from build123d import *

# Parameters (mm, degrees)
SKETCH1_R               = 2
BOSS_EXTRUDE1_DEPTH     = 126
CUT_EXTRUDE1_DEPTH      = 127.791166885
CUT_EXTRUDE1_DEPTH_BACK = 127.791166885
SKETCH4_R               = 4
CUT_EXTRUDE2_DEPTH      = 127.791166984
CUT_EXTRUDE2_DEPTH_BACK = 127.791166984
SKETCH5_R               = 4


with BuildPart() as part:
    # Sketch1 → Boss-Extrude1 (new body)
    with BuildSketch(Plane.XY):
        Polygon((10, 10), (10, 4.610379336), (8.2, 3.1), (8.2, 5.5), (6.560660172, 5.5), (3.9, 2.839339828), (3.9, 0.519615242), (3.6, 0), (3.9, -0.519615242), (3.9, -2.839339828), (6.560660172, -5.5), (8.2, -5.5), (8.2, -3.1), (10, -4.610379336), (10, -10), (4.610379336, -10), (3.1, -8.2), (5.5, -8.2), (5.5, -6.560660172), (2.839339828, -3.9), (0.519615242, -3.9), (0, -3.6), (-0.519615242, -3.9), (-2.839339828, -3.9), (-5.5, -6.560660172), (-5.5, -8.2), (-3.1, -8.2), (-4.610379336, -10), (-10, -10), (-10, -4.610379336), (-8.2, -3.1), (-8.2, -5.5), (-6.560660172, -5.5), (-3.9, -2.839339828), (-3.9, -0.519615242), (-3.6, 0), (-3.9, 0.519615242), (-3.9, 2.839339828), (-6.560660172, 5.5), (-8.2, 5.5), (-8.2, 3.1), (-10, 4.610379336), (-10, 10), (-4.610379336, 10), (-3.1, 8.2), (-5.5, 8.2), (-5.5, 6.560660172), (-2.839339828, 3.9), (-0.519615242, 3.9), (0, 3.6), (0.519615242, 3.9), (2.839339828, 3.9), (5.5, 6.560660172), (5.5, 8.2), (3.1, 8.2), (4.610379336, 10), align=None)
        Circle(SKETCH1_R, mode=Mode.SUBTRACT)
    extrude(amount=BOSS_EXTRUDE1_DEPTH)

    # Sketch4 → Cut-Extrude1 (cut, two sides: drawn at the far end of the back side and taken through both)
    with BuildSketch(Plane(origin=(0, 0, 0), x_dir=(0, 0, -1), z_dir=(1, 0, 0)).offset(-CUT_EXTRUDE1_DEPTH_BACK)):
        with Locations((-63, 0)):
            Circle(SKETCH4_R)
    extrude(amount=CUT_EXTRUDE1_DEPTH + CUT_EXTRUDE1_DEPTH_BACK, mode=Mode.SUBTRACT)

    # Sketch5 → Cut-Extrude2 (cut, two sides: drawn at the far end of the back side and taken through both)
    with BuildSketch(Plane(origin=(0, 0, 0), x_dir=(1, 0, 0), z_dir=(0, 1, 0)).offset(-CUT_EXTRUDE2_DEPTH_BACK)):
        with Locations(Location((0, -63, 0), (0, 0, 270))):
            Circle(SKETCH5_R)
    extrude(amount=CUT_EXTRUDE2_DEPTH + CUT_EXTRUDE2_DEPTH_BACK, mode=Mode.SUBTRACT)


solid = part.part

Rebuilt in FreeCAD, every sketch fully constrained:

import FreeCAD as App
import Part
import Sketcher

V = App.Vector
Q = App.Units.Quantity

doc = App.newDocument("Part")
body = doc.addObject("PartDesign::Body", "Body")

sketch1 = body.newObject("Sketcher::SketchObject", "Sketch")
sketch1.AttachmentSupport = (doc.getObject("XY_Plane"), [""])
sketch1.MapMode = "FlatFace"
sketch1.addGeometry(Part.LineSegment(V(10, 4.610379, 0), V(10, 10, 0)), False)
sketch1.addGeometry(Part.LineSegment(V(10, 10, 0), V(4.610379, 10, 0)), False)
sketch1.addGeometry(Part.LineSegment(V(4.610379, 10, 0), V(3.1, 8.2, 0)), False)
sketch1.addGeometry(Part.LineSegment(V(3.1, 8.2, 0), V(5.5, 8.2, 0)), False)
sketch1.addGeometry(Part.LineSegment(V(5.5, 8.2, 0), V(5.5, 6.56066, 0)), False)
sketch1.addGeometry(Part.LineSegment(V(5.5, 6.56066, 0), V(2.83934, 3.9, 0)), False)
sketch1.addGeometry(Part.LineSegment(V(2.83934, 3.9, 0), V(0.519615, 3.9, 0)), False)
sketch1.addGeometry(Part.LineSegment(V(0.519615, 3.9, 0), V(0, 3.6, 0)), False)
sketch1.addGeometry(Part.LineSegment(V(0, 3.6, 0), V(-0.519615, 3.9, 0)), False)
sketch1.addGeometry(Part.LineSegment(V(-0.519615, 3.9, 0), V(-2.83934, 3.9, 0)), False)
sketch1.addGeometry(Part.LineSegment(V(-2.83934, 3.9, 0), V(-5.5, 6.56066, 0)), False)
sketch1.addGeometry(Part.LineSegment(V(-5.5, 6.56066, 0), V(-5.5, 8.2, 0)), False)
sketch1.addGeometry(Part.LineSegment(V(-5.5, 8.2, 0), V(-3.1, 8.2, 0)), False)
sketch1.addGeometry(Part.LineSegment(V(-3.1, 8.2, 0), V(-4.610379, 10, 0)), False)
sketch1.addGeometry(Part.LineSegment(V(-4.610379, 10, 0), V(-10, 10, 0)), False)
sketch1.addGeometry(Part.LineSegment(V(-10, 10, 0), V(-10, 4.610379, 0)), False)
sketch1.addGeometry(Part.LineSegment(V(-10, 4.610379, 0), V(-8.2, 3.1, 0)), False)
sketch1.addGeometry(Part.LineSegment(V(-8.2, 3.1, 0), V(-8.2, 5.5, 0)), False)
sketch1.addGeometry(Part.LineSegment(V(-8.2, 5.5, 0), V(-6.56066, 5.5, 0)), False)
sketch1.addGeometry(Part.LineSegment(V(-6.56066, 5.5, 0), V(-3.9, 2.83934, 0)), False)
sketch1.addGeometry(Part.LineSegment(V(-3.9, 2.83934, 0), V(-3.9, 0.519615, 0)), False)
sketch1.addGeometry(Part.LineSegment(V(-3.9, 0.519615, 0), V(-3.6, 0, 0)), False)
sketch1.addGeometry(Part.LineSegment(V(-3.6, 0, 0), V(-3.9, -0.519615, 0)), False)
sketch1.addGeometry(Part.LineSegment(V(-3.9, -0.519615, 0), V(-3.9, -2.83934, 0)), False)
sketch1.addGeometry(Part.LineSegment(V(-3.9, -2.83934, 0), V(-6.56066, -5.5, 0)), False)
sketch1.addGeometry(Part.LineSegment(V(-6.56066, -5.5, 0), V(-8.2, -5.5, 0)), False)
sketch1.addGeometry(Part.LineSegment(V(-8.2, -5.5, 0), V(-8.2, -3.1, 0)), False)
sketch1.addGeometry(Part.LineSegment(V(-8.2, -3.1, 0), V(-10, -4.610379, 0)), False)
sketch1.addGeometry(Part.LineSegment(V(-10, -4.610379, 0), V(-10, -10, 0)), False)
sketch1.addGeometry(Part.LineSegment(V(-10, -10, 0), V(-4.610379, -10, 0)), False)
sketch1.addGeometry(Part.LineSegment(V(-4.610379, -10, 0), V(-3.1, -8.2, 0)), False)
sketch1.addGeometry(Part.LineSegment(V(-3.1, -8.2, 0), V(-5.5, -8.2, 0)), False)
sketch1.addGeometry(Part.LineSegment(V(-5.5, -8.2, 0), V(-5.5, -6.56066, 0)), False)
sketch1.addGeometry(Part.LineSegment(V(-5.5, -6.56066, 0), V(-2.83934, -3.9, 0)), False)
sketch1.addGeometry(Part.LineSegment(V(-2.83934, -3.9, 0), V(-0.519615, -3.9, 0)), False)
sketch1.addGeometry(Part.LineSegment(V(-0.519615, -3.9, 0), V(0, -3.6, 0)), False)
sketch1.addGeometry(Part.LineSegment(V(0, -3.6, 0), V(0.519615, -3.9, 0)), False)
sketch1.addGeometry(Part.LineSegment(V(0.519615, -3.9, 0), V(2.83934, -3.9, 0)), False)
sketch1.addGeometry(Part.LineSegment(V(2.83934, -3.9, 0), V(5.5, -6.56066, 0)), False)
sketch1.addGeometry(Part.LineSegment(V(5.5, -6.56066, 0), V(5.5, -8.2, 0)), False)
sketch1.addGeometry(Part.LineSegment(V(5.5, -8.2, 0), V(3.1, -8.2, 0)), False)
sketch1.addGeometry(Part.LineSegment(V(3.1, -8.2, 0), V(4.610379, -10, 0)), False)
sketch1.addGeometry(Part.LineSegment(V(4.610379, -10, 0), V(10, -10, 0)), False)
sketch1.addGeometry(Part.LineSegment(V(10, -10, 0), V(10, -4.610379, 0)), False)
sketch1.addGeometry(Part.LineSegment(V(10, -4.610379, 0), V(8.2, -3.1, 0)), False)
sketch1.addGeometry(Part.LineSegment(V(8.2, -3.1, 0), V(8.2, -5.5, 0)), False)
sketch1.addGeometry(Part.LineSegment(V(8.2, -5.5, 0), V(6.56066, -5.5, 0)), False)
sketch1.addGeometry(Part.LineSegment(V(6.56066, -5.5, 0), V(3.9, -2.83934, 0)), False)
sketch1.addGeometry(Part.LineSegment(V(3.9, -2.83934, 0), V(3.9, -0.519615, 0)), False)
sketch1.addGeometry(Part.LineSegment(V(3.9, -0.519615, 0), V(3.6, 0, 0)), False)
sketch1.addGeometry(Part.LineSegment(V(3.6, 0, 0), V(3.9, 0.519615, 0)), False)
sketch1.addGeometry(Part.LineSegment(V(3.9, 0.519615, 0), V(3.9, 2.83934, 0)), False)
sketch1.addGeometry(Part.LineSegment(V(3.9, 2.83934, 0), V(6.56066, 5.5, 0)), False)
sketch1.addGeometry(Part.LineSegment(V(6.56066, 5.5, 0), V(8.2, 5.5, 0)), False)
sketch1.addGeometry(Part.LineSegment(V(8.2, 5.5, 0), V(8.2, 3.1, 0)), False)
sketch1.addGeometry(Part.LineSegment(V(8.2, 3.1, 0), V(10, 4.610379, 0)), False)
sketch1.addGeometry(Part.Circle(V(0, 0, 0), V(0, 0, 1), 2), False)
sketch1.addConstraint(Sketcher.Constraint("Coincident", 0, 2, 1, 1))
sketch1.addConstraint(Sketcher.Constraint("Coincident", 1, 2, 2, 1))
sketch1.addConstraint(Sketcher.Constraint("Coincident", 2, 2, 3, 1))
sketch1.addConstraint(Sketcher.Constraint("Coincident", 3, 2, 4, 1))
sketch1.addConstraint(Sketcher.Constraint("Coincident", 4, 2, 5, 1))
sketch1.addConstraint(Sketcher.Constraint("Coincident", 5, 2, 6, 1))
sketch1.addConstraint(Sketcher.Constraint("Coincident", 6, 2, 7, 1))
sketch1.addConstraint(Sketcher.Constraint("Coincident", 7, 2, 8, 1))
sketch1.addConstraint(Sketcher.Constraint("Coincident", 8, 2, 9, 1))
sketch1.addConstraint(Sketcher.Constraint("Coincident", 9, 2, 10, 1))
sketch1.addConstraint(Sketcher.Constraint("Coincident", 10, 2, 11, 1))
sketch1.addConstraint(Sketcher.Constraint("Coincident", 11, 2, 12, 1))
sketch1.addConstraint(Sketcher.Constraint("Coincident", 12, 2, 13, 1))
sketch1.addConstraint(Sketcher.Constraint("Coincident", 13, 2, 14, 1))
sketch1.addConstraint(Sketcher.Constraint("Coincident", 14, 2, 15, 1))
sketch1.addConstraint(Sketcher.Constraint("Coincident", 15, 2, 16, 1))
sketch1.addConstraint(Sketcher.Constraint("Coincident", 16, 2, 17, 1))
sketch1.addConstraint(Sketcher.Constraint("Coincident", 17, 2, 18, 1))
sketch1.addConstraint(Sketcher.Constraint("Coincident", 18, 2, 19, 1))
sketch1.addConstraint(Sketcher.Constraint("Coincident", 19, 2, 20, 1))
sketch1.addConstraint(Sketcher.Constraint("Coincident", 20, 2, 21, 1))
sketch1.addConstraint(Sketcher.Constraint("Coincident", 21, 2, 22, 1))
sketch1.addConstraint(Sketcher.Constraint("Coincident", 22, 2, 23, 1))
sketch1.addConstraint(Sketcher.Constraint("Coincident", 23, 2, 24, 1))
sketch1.addConstraint(Sketcher.Constraint("Coincident", 24, 2, 25, 1))
sketch1.addConstraint(Sketcher.Constraint("Coincident", 25, 2, 26, 1))
sketch1.addConstraint(Sketcher.Constraint("Coincident", 26, 2, 27, 1))
sketch1.addConstraint(Sketcher.Constraint("Coincident", 27, 2, 28, 1))
sketch1.addConstraint(Sketcher.Constraint("Coincident", 28, 2, 29, 1))
sketch1.addConstraint(Sketcher.Constraint("Coincident", 29, 2, 30, 1))
sketch1.addConstraint(Sketcher.Constraint("Coincident", 30, 2, 31, 1))
sketch1.addConstraint(Sketcher.Constraint("Coincident", 31, 2, 32, 1))
sketch1.addConstraint(Sketcher.Constraint("Coincident", 32, 2, 33, 1))
sketch1.addConstraint(Sketcher.Constraint("Coincident", 33, 2, 34, 1))
sketch1.addConstraint(Sketcher.Constraint("Coincident", 34, 2, 35, 1))
sketch1.addConstraint(Sketcher.Constraint("Coincident", 35, 2, 36, 1))
sketch1.addConstraint(Sketcher.Constraint("Coincident", 36, 2, 37, 1))
sketch1.addConstraint(Sketcher.Constraint("Coincident", 37, 2, 38, 1))
sketch1.addConstraint(Sketcher.Constraint("Coincident", 38, 2, 39, 1))
sketch1.addConstraint(Sketcher.Constraint("Coincident", 39, 2, 40, 1))
sketch1.addConstraint(Sketcher.Constraint("Coincident", 40, 2, 41, 1))
sketch1.addConstraint(Sketcher.Constraint("Coincident", 41, 2, 42, 1))
sketch1.addConstraint(Sketcher.Constraint("Coincident", 42, 2, 43, 1))
sketch1.addConstraint(Sketcher.Constraint("Coincident", 43, 2, 44, 1))
sketch1.addConstraint(Sketcher.Constraint("Coincident", 44, 2, 45, 1))
sketch1.addConstraint(Sketcher.Constraint("Coincident", 45, 2, 46, 1))
sketch1.addConstraint(Sketcher.Constraint("Coincident", 46, 2, 47, 1))
sketch1.addConstraint(Sketcher.Constraint("Coincident", 47, 2, 48, 1))
sketch1.addConstraint(Sketcher.Constraint("Coincident", 48, 2, 49, 1))
sketch1.addConstraint(Sketcher.Constraint("Coincident", 49, 2, 50, 1))
sketch1.addConstraint(Sketcher.Constraint("Coincident", 50, 2, 51, 1))
sketch1.addConstraint(Sketcher.Constraint("Coincident", 51, 2, 52, 1))
sketch1.addConstraint(Sketcher.Constraint("Coincident", 52, 2, 53, 1))
sketch1.addConstraint(Sketcher.Constraint("Coincident", 53, 2, 54, 1))
sketch1.addConstraint(Sketcher.Constraint("Coincident", 54, 2, 55, 1))
sketch1.addConstraint(Sketcher.Constraint("Coincident", 55, 2, 0, 1))
sketch1.addConstraint(Sketcher.Constraint("Vertical", 0))
sketch1.addConstraint(Sketcher.Constraint("Horizontal", 1))
sketch1.addConstraint(Sketcher.Constraint("Horizontal", 3))
sketch1.addConstraint(Sketcher.Constraint("Vertical", 4))
sketch1.addConstraint(Sketcher.Constraint("Horizontal", 6))
sketch1.addConstraint(Sketcher.Constraint("Horizontal", 9))
sketch1.addConstraint(Sketcher.Constraint("Vertical", 11))
sketch1.addConstraint(Sketcher.Constraint("Horizontal", 12))
sketch1.addConstraint(Sketcher.Constraint("Horizontal", 14))
sketch1.addConstraint(Sketcher.Constraint("Vertical", 15))
sketch1.addConstraint(Sketcher.Constraint("Vertical", 17))
sketch1.addConstraint(Sketcher.Constraint("Horizontal", 18))
sketch1.addConstraint(Sketcher.Constraint("Vertical", 20))
sketch1.addConstraint(Sketcher.Constraint("Vertical", 23))
sketch1.addConstraint(Sketcher.Constraint("Horizontal", 25))
sketch1.addConstraint(Sketcher.Constraint("Vertical", 26))
sketch1.addConstraint(Sketcher.Constraint("Vertical", 28))
sketch1.addConstraint(Sketcher.Constraint("Horizontal", 29))
sketch1.addConstraint(Sketcher.Constraint("Horizontal", 31))
sketch1.addConstraint(Sketcher.Constraint("Vertical", 32))
sketch1.addConstraint(Sketcher.Constraint("Horizontal", 34))
sketch1.addConstraint(Sketcher.Constraint("Horizontal", 37))
sketch1.addConstraint(Sketcher.Constraint("Vertical", 39))
sketch1.addConstraint(Sketcher.Constraint("Horizontal", 40))
sketch1.addConstraint(Sketcher.Constraint("Horizontal", 42))
sketch1.addConstraint(Sketcher.Constraint("Vertical", 43))
sketch1.addConstraint(Sketcher.Constraint("Vertical", 45))
sketch1.addConstraint(Sketcher.Constraint("Horizontal", 46))
sketch1.addConstraint(Sketcher.Constraint("Vertical", 48))
sketch1.addConstraint(Sketcher.Constraint("Vertical", 51))
sketch1.addConstraint(Sketcher.Constraint("Horizontal", 53))
sketch1.addConstraint(Sketcher.Constraint("Vertical", 54))
sketch1.addConstraint(Sketcher.Constraint("Coincident", 56, 3, -1, 1))
sketch1.addConstraint(Sketcher.Constraint("Symmetric", 0, 2, 28, 2, -1, 1))
sketch1.addConstraint(Sketcher.Constraint("Symmetric", 2, 2, 30, 2, -1, 1))
sketch1.addConstraint(Sketcher.Constraint("Symmetric", 4, 2, 32, 2, -1, 1))
sketch1.addConstraint(Sketcher.Constraint("Symmetric", 5, 2, 33, 2, -1, 1))
sketch1.addConstraint(Sketcher.Constraint("Symmetric", 7, 2, 35, 2, -1, 1))
sketch1.addConstraint(Sketcher.Constraint("Symmetric", 8, 2, 36, 2, -1, 1))
sketch1.addConstraint(Sketcher.Constraint("Symmetric", 10, 2, 38, 2, -1, 1))
sketch1.addConstraint(Sketcher.Constraint("Symmetric", 12, 2, 40, 2, -1, 1))
sketch1.addConstraint(Sketcher.Constraint("Symmetric", 13, 2, 41, 2, -1, 1))
sketch1.addConstraint(Sketcher.Constraint("Symmetric", 15, 2, 43, 2, -1, 1))
sketch1.addConstraint(Sketcher.Constraint("Symmetric", 16, 2, 44, 2, -1, 1))
sketch1.addConstraint(Sketcher.Constraint("Symmetric", 18, 2, 46, 2, -1, 1))
sketch1.addConstraint(Sketcher.Constraint("Symmetric", 19, 2, 47, 2, -1, 1))
sketch1.addConstraint(Sketcher.Constraint("Symmetric", 21, 2, 49, 2, -1, 1))
sketch1.addConstraint(Sketcher.Constraint("Symmetric", 22, 2, 50, 2, -1, 1))
sketch1.addConstraint(Sketcher.Constraint("Symmetric", 24, 2, 52, 2, -1, 1))
sketch1.addConstraint(Sketcher.Constraint("Symmetric", 26, 2, 54, 2, -1, 1))
sketch1.addConstraint(Sketcher.Constraint("Symmetric", 6, 2, 8, 2, -2))
sketch1.addConstraint(Sketcher.Constraint("Symmetric", 4, 2, 10, 2, -2))
sketch1.addConstraint(Sketcher.Constraint("Symmetric", 2, 2, 12, 2, -2))
sketch1.addConstraint(Sketcher.Constraint("Symmetric", 1, 2, 13, 2, -2))
sketch1.addConstraint(Sketcher.Constraint("Symmetric", 27, 2, 43, 2, -2))
sketch1.addConstraint(Sketcher.Constraint("Symmetric", 26, 2, 44, 2, -2))
sketch1.addConstraint(Sketcher.Constraint("Symmetric", 24, 2, 46, 2, -2))
sketch1.addConstraint(Sketcher.Constraint("Symmetric", 23, 2, 47, 2, -2))
sketch1.addConstraint(Sketcher.Constraint("PointOnObject", 7, 2, -2))
sketch1.addConstraint(Sketcher.Constraint("PointOnObject", 21, 2, -1))
sketch1.addConstraint(Sketcher.Constraint("Perpendicular", 5, 10))
sketch1.addConstraint(Sketcher.Constraint("Perpendicular", 2, 16))
sketch1.addConstraint(Sketcher.Constraint("Parallel", 10, 19))
sketch1.addConstraint(Sketcher.Constraint("Perpendicular", 7, 21))
sketch1.addConstraint(Sketcher.Constraint("Perpendicular", 8, 22))
sketch1.addConstraint(Sketcher.Constraint("Perpendicular", 19, 24))
sketch1.addConstraint(Sketcher.Constraint("Perpendicular", 16, 30))
sketch1.addConstraint(Sketcher.Constraint("Perpendicular", 21, 35))
sketch1.addConstraint(Sketcher.Constraint("Perpendicular", 33, 38))
sketch1.addConstraint(Sketcher.Constraint("Perpendicular", 35, 49))
sketch1.addConstraint(Sketcher.Constraint("Perpendicular", 47, 52))
sketch1.addConstraint(Sketcher.Constraint("Perpendicular", 41, 55))
sketch1.addConstraint(Sketcher.Constraint("Equal", 42, 0))
sketch1.addConstraint(Sketcher.Constraint("Equal", 53, 4))
sketch1.addConstraint(Sketcher.Constraint("Equal", 40, 17))
sketch1.addConstraint(Sketcher.Constraint("Equal", 37, 20))
sketch1.addConstraint(Sketcher.Constraint("Equal", 13, 16))
sketch1.addConstraint(Sketcher.Constraint("Equal", 10, 19))
sketch1.addConstraint(Sketcher.Constraint("Equal", 8, 21))
sketch1.addConstraint(Sketcher.Constraint("Diameter", 56, Q("4 mm")))
sketch1.addConstraint(Sketcher.Constraint("Angle", 2, Q("-130 deg")))
sketch1.addConstraint(Sketcher.Constraint("Angle", 7, Q("-150 deg")))
sketch1.addConstraint(Sketcher.Constraint("DistanceX", 3, 1, 3, 2, Q("2.4 mm")))
sketch1.addConstraint(Sketcher.Constraint("DistanceX", -1, 1, 0, 2, Q("10 mm")))
sketch1.addConstraint(Sketcher.Constraint("Distance", 7, Q("0.6 mm")))
sketch1.addConstraint(Sketcher.Constraint("DistanceX", -1, 1, 2, 2, Q("3.1 mm")))
sketch1.addConstraint(Sketcher.Constraint("DistanceY", -1, 1, 2, 2, Q("8.2 mm")))
sketch1.addConstraint(Sketcher.Constraint("DistanceY", -1, 1, 5, 2, Q("3.9 mm")))
sketch1.addConstraint(Sketcher.Constraint("DistanceX", 18, 1, 18, 2, Q("1.63934 mm")))
pad1 = body.newObject("PartDesign::Pad", "Pad")
pad1.Profile = sketch1
pad1.Length = 126

sketch2 = body.newObject("Sketcher::SketchObject", "Sketch001")
sketch2.AttachmentSupport = (doc.getObject("YZ_Plane"), [""])
sketch2.MapMode = "FlatFace"
sketch2.addGeometry(Part.Circle(V(0, 63, 0), V(0, 0, 1), 4), False)
sketch2.addConstraint(Sketcher.Constraint("PointOnObject", 0, 3, -2))
sketch2.addConstraint(Sketcher.Constraint("Diameter", 0, Q("8 mm")))
sketch2.addConstraint(Sketcher.Constraint("DistanceY", -1, 1, 0, 3, Q("63 mm")))
pocket1 = body.newObject("PartDesign::Pocket", "Pocket")
pocket1.Profile = sketch2
pocket1.Type = "ThroughAll"
pocket1.Midplane = True

sketch3 = body.newObject("Sketcher::SketchObject", "Sketch002")
sketch3.AttachmentSupport = (doc.getObject("XZ_Plane"), [""])
sketch3.MapMode = "FlatFace"
sketch3.addGeometry(Part.Circle(V(0, 63, 0), V(0, 0, 1), 4), False)
sketch3.addConstraint(Sketcher.Constraint("PointOnObject", 0, 3, -2))
sketch3.addConstraint(Sketcher.Constraint("Diameter", 0, Q("8 mm")))
sketch3.addConstraint(Sketcher.Constraint("DistanceY", -1, 1, 0, 3, Q("63 mm")))
pocket2 = body.newObject("PartDesign::Pocket", "Pocket001")
pocket2.Profile = sketch3
pocket2.Type = "ThroughAll"
pocket2.Midplane = True

doc.recompute()
